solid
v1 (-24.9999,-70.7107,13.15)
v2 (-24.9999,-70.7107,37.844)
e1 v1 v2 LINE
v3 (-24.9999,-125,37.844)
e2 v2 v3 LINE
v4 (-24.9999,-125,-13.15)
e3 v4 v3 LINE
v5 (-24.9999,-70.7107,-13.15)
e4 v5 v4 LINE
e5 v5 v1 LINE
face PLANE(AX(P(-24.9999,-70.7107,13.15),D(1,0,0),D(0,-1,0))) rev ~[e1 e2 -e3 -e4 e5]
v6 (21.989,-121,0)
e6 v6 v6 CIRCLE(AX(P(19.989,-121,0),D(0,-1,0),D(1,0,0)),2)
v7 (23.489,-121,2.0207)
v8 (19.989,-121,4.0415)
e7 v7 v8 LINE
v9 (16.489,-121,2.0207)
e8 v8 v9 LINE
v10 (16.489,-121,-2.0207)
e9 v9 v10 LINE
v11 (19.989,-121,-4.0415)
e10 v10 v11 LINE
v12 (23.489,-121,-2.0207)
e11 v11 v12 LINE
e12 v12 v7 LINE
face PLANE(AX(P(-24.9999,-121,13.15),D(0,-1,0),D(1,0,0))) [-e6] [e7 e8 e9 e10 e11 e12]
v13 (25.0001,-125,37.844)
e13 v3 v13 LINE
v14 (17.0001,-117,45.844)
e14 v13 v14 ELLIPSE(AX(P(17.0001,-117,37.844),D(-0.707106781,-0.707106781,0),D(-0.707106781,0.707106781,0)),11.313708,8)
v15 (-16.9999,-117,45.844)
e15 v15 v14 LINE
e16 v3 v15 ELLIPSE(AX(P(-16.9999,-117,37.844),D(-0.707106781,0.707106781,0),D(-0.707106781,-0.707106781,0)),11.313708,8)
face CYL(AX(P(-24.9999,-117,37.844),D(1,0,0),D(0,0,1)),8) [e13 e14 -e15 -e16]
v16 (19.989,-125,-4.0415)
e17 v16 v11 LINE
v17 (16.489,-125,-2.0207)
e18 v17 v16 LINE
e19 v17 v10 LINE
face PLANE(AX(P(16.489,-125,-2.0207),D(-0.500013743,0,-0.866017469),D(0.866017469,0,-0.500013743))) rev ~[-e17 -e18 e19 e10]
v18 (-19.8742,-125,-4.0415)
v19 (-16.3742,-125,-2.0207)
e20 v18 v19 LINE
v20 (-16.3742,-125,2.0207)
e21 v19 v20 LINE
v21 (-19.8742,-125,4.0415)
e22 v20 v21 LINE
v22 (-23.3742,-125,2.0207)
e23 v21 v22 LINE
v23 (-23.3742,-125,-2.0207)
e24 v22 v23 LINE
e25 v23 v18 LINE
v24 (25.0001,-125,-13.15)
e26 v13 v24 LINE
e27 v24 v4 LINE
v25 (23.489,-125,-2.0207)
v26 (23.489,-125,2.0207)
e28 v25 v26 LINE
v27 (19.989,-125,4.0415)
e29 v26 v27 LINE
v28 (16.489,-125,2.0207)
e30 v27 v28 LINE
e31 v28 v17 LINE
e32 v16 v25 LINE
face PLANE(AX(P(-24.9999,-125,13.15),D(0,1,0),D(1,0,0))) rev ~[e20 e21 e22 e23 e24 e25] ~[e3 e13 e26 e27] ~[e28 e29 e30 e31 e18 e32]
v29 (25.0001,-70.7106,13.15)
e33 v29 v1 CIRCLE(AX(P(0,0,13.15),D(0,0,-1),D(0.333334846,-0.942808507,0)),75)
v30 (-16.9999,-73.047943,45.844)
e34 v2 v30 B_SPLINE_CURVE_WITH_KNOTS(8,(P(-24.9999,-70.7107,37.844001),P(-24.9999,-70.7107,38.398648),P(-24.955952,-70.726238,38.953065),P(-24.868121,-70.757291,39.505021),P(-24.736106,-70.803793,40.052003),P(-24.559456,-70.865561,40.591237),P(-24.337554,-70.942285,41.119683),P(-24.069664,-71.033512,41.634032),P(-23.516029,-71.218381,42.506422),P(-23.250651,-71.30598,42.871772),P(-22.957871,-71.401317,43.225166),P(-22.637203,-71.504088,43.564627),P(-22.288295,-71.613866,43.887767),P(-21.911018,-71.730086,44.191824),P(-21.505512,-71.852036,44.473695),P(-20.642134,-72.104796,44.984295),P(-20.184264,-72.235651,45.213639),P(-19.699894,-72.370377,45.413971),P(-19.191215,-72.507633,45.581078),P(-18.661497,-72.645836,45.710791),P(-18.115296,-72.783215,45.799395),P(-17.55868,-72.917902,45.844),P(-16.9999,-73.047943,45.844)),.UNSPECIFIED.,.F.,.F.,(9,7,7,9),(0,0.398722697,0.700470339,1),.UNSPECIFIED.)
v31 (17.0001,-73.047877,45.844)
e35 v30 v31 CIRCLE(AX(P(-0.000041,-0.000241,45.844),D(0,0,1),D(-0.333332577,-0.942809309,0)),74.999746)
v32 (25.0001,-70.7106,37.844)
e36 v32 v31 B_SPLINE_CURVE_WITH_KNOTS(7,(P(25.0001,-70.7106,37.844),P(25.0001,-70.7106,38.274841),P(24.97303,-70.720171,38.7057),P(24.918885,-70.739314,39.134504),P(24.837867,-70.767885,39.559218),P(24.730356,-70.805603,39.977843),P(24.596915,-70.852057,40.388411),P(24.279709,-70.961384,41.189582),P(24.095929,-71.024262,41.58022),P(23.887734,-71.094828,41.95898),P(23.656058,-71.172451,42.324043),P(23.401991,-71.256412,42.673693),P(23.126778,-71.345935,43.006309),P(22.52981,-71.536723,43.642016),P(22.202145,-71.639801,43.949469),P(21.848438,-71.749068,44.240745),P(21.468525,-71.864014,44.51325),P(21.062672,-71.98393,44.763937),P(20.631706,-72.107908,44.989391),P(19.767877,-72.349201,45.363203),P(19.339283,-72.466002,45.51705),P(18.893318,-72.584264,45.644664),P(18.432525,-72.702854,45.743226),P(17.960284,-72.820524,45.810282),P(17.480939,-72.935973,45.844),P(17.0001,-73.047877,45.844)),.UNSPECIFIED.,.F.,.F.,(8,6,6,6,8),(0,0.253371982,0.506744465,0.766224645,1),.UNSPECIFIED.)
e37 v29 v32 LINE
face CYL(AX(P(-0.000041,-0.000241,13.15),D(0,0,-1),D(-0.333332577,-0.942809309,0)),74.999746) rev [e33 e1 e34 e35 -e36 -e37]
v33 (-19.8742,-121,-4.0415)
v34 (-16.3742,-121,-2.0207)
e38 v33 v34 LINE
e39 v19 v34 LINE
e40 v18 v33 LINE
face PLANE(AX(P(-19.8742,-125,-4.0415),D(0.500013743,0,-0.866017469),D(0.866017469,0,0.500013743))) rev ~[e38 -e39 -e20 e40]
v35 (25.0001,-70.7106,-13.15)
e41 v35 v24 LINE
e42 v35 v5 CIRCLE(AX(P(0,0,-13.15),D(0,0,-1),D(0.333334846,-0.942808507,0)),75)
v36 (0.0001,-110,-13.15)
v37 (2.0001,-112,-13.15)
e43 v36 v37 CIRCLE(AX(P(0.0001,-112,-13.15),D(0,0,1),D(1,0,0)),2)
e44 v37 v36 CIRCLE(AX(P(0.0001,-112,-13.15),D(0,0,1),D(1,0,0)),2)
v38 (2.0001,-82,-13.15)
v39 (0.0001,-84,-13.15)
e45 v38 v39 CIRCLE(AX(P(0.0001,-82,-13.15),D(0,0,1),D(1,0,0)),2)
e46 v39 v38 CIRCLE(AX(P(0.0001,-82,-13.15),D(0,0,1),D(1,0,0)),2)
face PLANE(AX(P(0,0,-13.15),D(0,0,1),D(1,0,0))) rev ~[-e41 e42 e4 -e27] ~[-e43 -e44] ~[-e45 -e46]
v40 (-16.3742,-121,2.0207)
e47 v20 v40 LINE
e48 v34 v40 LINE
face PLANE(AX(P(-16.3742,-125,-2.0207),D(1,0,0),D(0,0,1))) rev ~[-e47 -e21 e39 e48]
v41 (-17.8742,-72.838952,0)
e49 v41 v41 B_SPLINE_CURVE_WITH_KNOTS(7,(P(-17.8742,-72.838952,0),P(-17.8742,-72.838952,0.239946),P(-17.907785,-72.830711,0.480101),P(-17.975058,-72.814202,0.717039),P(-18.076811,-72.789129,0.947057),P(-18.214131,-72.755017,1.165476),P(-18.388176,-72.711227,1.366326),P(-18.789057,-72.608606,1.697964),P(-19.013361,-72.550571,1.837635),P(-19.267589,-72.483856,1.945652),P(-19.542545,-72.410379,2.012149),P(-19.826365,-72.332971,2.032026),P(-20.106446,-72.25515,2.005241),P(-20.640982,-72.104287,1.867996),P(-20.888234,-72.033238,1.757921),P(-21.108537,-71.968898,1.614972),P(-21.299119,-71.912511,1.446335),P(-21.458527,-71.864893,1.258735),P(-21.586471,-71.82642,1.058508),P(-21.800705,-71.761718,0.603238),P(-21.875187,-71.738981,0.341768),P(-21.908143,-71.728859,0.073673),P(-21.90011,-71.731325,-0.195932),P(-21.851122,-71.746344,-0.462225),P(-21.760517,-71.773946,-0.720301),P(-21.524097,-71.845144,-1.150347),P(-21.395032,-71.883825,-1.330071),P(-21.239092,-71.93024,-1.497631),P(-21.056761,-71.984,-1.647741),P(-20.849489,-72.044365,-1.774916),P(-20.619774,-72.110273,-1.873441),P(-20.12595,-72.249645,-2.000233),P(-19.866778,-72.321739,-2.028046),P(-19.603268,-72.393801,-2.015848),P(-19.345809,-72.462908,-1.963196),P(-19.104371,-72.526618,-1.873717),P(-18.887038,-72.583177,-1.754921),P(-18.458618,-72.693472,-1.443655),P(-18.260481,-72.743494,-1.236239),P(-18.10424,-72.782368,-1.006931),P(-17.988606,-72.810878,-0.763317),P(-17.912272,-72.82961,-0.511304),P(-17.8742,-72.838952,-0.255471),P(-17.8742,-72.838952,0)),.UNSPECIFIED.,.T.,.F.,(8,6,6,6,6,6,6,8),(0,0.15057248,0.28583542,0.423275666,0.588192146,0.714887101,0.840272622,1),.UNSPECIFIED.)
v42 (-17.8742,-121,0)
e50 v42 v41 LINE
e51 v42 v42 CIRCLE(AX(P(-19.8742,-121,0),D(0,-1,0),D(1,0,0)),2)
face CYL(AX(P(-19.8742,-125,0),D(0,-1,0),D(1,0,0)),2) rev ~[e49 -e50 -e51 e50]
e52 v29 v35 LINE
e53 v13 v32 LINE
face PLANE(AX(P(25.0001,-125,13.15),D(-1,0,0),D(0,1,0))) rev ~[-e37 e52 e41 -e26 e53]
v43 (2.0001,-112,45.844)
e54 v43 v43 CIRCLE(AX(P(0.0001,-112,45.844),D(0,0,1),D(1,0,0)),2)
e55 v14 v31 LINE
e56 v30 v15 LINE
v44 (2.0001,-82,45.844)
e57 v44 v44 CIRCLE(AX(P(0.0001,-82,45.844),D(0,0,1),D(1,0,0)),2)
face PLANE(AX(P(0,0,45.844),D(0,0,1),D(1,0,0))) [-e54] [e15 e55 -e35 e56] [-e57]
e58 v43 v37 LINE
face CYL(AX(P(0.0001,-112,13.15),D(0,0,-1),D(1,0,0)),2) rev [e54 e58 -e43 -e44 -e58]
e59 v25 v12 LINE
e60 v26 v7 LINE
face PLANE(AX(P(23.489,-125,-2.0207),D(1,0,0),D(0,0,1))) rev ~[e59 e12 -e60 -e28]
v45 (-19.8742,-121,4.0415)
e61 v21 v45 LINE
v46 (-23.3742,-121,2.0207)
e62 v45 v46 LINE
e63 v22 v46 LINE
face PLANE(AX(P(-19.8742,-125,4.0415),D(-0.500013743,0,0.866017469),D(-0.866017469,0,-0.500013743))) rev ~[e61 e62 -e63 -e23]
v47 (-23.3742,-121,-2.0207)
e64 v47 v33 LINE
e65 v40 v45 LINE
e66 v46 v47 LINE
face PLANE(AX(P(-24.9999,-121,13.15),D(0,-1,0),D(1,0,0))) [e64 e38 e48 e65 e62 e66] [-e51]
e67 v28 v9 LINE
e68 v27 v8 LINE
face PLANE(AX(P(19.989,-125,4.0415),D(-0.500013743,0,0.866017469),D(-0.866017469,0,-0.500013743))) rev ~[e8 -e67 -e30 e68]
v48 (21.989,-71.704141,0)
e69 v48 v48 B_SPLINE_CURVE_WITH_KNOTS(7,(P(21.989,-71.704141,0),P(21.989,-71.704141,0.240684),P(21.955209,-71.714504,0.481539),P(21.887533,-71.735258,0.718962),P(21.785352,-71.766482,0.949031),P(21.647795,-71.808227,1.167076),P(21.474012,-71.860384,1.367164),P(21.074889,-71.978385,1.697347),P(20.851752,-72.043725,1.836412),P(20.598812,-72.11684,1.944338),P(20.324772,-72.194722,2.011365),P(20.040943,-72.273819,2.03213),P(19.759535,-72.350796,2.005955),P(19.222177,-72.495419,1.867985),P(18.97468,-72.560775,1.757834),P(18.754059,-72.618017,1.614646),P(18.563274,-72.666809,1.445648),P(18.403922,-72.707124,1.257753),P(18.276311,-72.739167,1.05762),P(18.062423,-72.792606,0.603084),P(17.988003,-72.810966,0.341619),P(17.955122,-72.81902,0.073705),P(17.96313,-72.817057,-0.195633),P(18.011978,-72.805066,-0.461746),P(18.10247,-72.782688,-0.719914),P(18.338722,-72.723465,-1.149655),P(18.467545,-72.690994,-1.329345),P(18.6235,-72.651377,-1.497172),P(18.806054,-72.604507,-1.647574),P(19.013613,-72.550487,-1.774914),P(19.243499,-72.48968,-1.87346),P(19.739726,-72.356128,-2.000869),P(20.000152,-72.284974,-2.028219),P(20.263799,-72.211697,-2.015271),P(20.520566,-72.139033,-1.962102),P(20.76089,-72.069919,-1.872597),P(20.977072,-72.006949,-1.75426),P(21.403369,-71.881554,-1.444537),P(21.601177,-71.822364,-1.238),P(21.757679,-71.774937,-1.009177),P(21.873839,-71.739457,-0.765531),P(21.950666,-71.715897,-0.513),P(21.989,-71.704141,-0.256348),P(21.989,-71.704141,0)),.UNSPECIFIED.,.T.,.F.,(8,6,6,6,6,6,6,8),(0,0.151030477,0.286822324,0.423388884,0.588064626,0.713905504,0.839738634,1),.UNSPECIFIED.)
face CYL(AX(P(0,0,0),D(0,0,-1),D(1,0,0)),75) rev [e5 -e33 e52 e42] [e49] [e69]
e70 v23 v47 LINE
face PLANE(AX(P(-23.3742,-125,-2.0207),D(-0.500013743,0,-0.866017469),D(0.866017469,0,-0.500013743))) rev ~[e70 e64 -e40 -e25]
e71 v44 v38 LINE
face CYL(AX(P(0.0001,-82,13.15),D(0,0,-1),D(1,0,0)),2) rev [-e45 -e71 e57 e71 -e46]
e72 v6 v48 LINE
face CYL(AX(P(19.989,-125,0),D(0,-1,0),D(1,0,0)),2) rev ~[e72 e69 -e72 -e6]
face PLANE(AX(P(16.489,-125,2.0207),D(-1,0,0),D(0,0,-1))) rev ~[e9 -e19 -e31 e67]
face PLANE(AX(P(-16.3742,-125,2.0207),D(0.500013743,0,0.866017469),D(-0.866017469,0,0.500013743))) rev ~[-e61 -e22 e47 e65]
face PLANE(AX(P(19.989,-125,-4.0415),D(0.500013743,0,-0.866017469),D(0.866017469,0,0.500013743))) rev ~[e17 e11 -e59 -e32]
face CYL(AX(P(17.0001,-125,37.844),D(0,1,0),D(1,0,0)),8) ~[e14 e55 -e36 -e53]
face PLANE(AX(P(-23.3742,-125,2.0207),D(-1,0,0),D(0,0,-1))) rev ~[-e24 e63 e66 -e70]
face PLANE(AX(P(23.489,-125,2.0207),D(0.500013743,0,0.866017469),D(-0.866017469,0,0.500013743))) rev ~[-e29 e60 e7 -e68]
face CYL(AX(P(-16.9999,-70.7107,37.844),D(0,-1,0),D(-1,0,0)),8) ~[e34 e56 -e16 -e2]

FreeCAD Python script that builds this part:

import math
import FreeCAD as App
import Part
import Sketcher
Q = App.Units.Quantity


def edges_at(feature, points):
    """Names of the edges that pass closest to the given points."""
    edges = feature.Shape.Edges
    near = lambda p: min(range(len(edges)), key=lambda i: edges[i].distToShape(Part.Vertex(*p))[0])
    return sorted({f"Edge{near(p) + 1}" for p in points})


def add_polygon(sketch, points):
    """Adds a closed chain of lines whose ends are joined by coincident constraints."""
    first, n = sketch.GeometryCount, len(points)
    for a, b in zip(points, points[1:] + points[:1]):
        sketch.addGeometry(Part.LineSegment(App.Vector(*a, 0), App.Vector(*b, 0)), False)
    for i in range(n):
        sketch.addConstraint(Sketcher.Constraint("Coincident", first + i, 2, first + (i + 1) % n, 1))

doc = App.newDocument("Part")
body = doc.addObject("PartDesign::Body", "Body")

# Sketch on XY plane
sketch1 = doc.addObject("Sketcher::SketchObject", "Sketch")
body.addObject(sketch1)
sketch1.AttachmentSupport = (doc.XY_Plane, [""])
sketch1.MapMode = "FlatFace"
sketch1.addGeometry([
    Part.LineSegment(App.Vector(-25, -70.7, 0), App.Vector(-25, -125, 0)),  # 0
    Part.LineSegment(App.Vector(-25, -125, 0), App.Vector(25, -125, 0)),  # 1
    Part.LineSegment(App.Vector(25, -125, 0), App.Vector(25, -70.7, 0)),  # 2
    Part.ArcOfCircle(Part.Circle(App.Vector(0, 0, 0), App.Vector(0, 0, 1), 75), math.radians(-109), math.radians(-71)),  # 3
    Part.Circle(App.Vector(0, -82, 0), App.Vector(0, 0, 1), 2),  # 4
    Part.Circle(App.Vector(0, -112, 0), App.Vector(0, 0, 1), 2),  # 5
], False)
sketch1.addConstraint([
    Sketcher.Constraint("Coincident", 0, 2, 1, 1),
    Sketcher.Constraint("Coincident", 1, 2, 2, 1),
    Sketcher.Constraint("Coincident", 2, 2, 3, 2),
    Sketcher.Constraint("Coincident", 3, 1, 0, 1),
    Sketcher.Constraint("Vertical", 0),
    Sketcher.Constraint("Horizontal", 1),
    Sketcher.Constraint("Vertical", 2),
    Sketcher.Constraint("Coincident", 3, 3, -1, 1),
    Sketcher.Constraint("Equal", 4, 5),
    Sketcher.Constraint("PointOnObject", 4, 3, -2),
    Sketcher.Constraint("PointOnObject", 5, 3, -2),
    Sketcher.Constraint("Horizontal", 2, 2, 3, 1),
    Sketcher.Constraint("Diameter", 4, 4.0),
    Sketcher.Constraint("Radius", 3, 75.0),
    Sketcher.Constraint("DistanceX", 1, 1, 1, 2, 50.0),
    Sketcher.Constraint("DistanceY", 4, 3, -1, 1, 82.0),
    Sketcher.Constraint("DistanceY", 5, 3, 4, 3, 30.0),
    Sketcher.Constraint("DistanceY", 0, 2, -1, 1, 125.0),
])
pad1 = doc.addObject("PartDesign::Pad", "Pad")
body.addObject(pad1)
pad1.Profile = sketch1
pad1.Length = 26.3
pad1.Midplane = True

# Sketch on XZ plane
sketch2 = doc.addObject("Sketcher::SketchObject", "Sketch001")
body.addObject(sketch2)
sketch2.AttachmentSupport = (doc.XZ_Plane, [""])
sketch2.MapMode = "FlatFace"
sketch2.AttachmentOffset = App.Placement(App.Vector(0, 0, 125), App.Rotation())
sketch2.addGeometry([
    Part.Circle(App.Vector(-19.9, 0, 0), App.Vector(0, 0, 1), 2),
    Part.Circle(App.Vector(20, 0, 0), App.Vector(0, 0, 1), 2),
], False)
sketch2.addConstraint([
    Sketcher.Constraint("Equal", 0, 1),
    Sketcher.Constraint("PointOnObject", 0, 3, -1),
    Sketcher.Constraint("PointOnObject", 1, 3, -1),
    Sketcher.Constraint("Diameter", 0, 4.0),
    Sketcher.Constraint("DistanceX", -1, 1, 1, 3, 19.989),
    Sketcher.Constraint("DistanceX", 0, 3, -1, 1, 19.8742),
])
pocket1 = doc.addObject("PartDesign::Pocket", "Pocket")
body.addObject(pocket1)
pocket1.Profile = sketch2
pocket1.Type = "ThroughAll"

# Sketch on XZ plane
sketch3 = doc.addObject("Sketcher::SketchObject", "Sketch002")
body.addObject(sketch3)
sketch3.AttachmentSupport = (doc.XZ_Plane, [""])
sketch3.MapMode = "FlatFace"
sketch3.AttachmentOffset = App.Placement(App.Vector(0, 0, 125), App.Rotation())
add_polygon(sketch3, [(-16.4, -2), (-16.4, 2), (-19.9, 4), (-23.4, 2), (-23.4, -2), (-19.9, -4)])  # lines 0-5
add_polygon(sketch3, [(23.5, 2), (20, 4), (16.5, 2), (16.5, -2), (20, -4), (23.5, -2)])  # lines 6-11
sketch3.addConstraint([
    Sketcher.Constraint("Vertical", 0),
    Sketcher.Constraint("Vertical", 3),
    Sketcher.Constraint("Vertical", 8),
    Sketcher.Constraint("Vertical", 11),
    Sketcher.Constraint("Symmetric", 1, 2, 4, 2, -1),
    Sketcher.Constraint("Symmetric", 6, 2, 9, 2, -1),
    Sketcher.Constraint("Parallel", 1, 4),
    Sketcher.Constraint("Parallel", 2, 5),
    Sketcher.Constraint("Parallel", 4, 6),
    Sketcher.Constraint("Parallel", 5, 7),
    Sketcher.Constraint("Parallel", 6, 9),
    Sketcher.Constraint("Parallel", 7, 10),
    Sketcher.Constraint("Horizontal", 0, 2, 2, 2),
    Sketcher.Constraint("Horizontal", 3, 2, 5, 2),
    Sketcher.Constraint("Horizontal", 1, 2, 6, 2),
    Sketcher.Constraint("Horizontal", 2, 2, 7, 2),
    Sketcher.Constraint("Horizontal", 8, 2, 10, 2),
    Sketcher.Constraint("Angle", 1, Q("149.999 deg")),
    Sketcher.Constraint("DistanceX", 2, 2, 0, 2, 7.0),
    Sketcher.Constraint("DistanceY", 0, 1, 0, 2, 4.0414),
    Sketcher.Constraint("DistanceX", -1, 1, 6, 2, 19.989),
    Sketcher.Constraint("DistanceX", 0, 2, -1, 1, 16.3742),
])
pocket2 = doc.addObject("PartDesign::Pocket", "Pocket001")
body.addObject(pocket2)
pocket2.Profile = sketch3
pocket2.Length = 4

# Sketch on XY plane
sketch4 = doc.addObject("Sketcher::SketchObject", "Sketch003")
body.addObject(sketch4)
sketch4.AttachmentSupport = (doc.XY_Plane, [""])
sketch4.MapMode = "FlatFace"
sketch4.AttachmentOffset = App.Placement(App.Vector(0, 0, 13.15), App.Rotation())
sketch4.addGeometry([
    Part.ArcOfCircle(Part.Circle(App.Vector(0, 0, 0), App.Vector(0, 0, 1), 75), math.radians(-109), math.radians(-71)),  # 0
    Part.LineSegment(App.Vector(-25, -70.7, 0), App.Vector(-25, -125, 0)),  # 1
    Part.LineSegment(App.Vector(-25, -125, 0), App.Vector(25, -125, 0)),  # 2
    Part.LineSegment(App.Vector(25, -125, 0), App.Vector(25, -70.7, 0)),  # 3
    Part.Circle(App.Vector(0, -112, 0), App.Vector(0, 0, 1), 2),  # 4
    Part.Circle(App.Vector(0, -82, 0), App.Vector(0, 0, 1), 2),  # 5
], False)
sketch4.addConstraint([
    Sketcher.Constraint("Coincident", 0, 1, 1, 1),
    Sketcher.Constraint("Coincident", 1, 2, 2, 1),
    Sketcher.Constraint("Coincident", 2, 2, 3, 1),
    Sketcher.Constraint("Coincident", 3, 2, 0, 2),
    Sketcher.Constraint("Vertical", 1),
    Sketcher.Constraint("Horizontal", 2),
    Sketcher.Constraint("Vertical", 3),
    Sketcher.Constraint("Coincident", 0, 3, -1, 1),
    Sketcher.Constraint("Equal", 4, 5),
    Sketcher.Constraint("PointOnObject", 4, 3, -2),
    Sketcher.Constraint("PointOnObject", 5, 3, -2),
    Sketcher.Constraint("Horizontal", 0, 1, 3, 2),
    Sketcher.Constraint("Diameter", 4, 4.0),
    Sketcher.Constraint("Radius", 0, 75.0),
    Sketcher.Constraint("DistanceX", 2, 1, 2, 2, 50.0),
    Sketcher.Constraint("DistanceY", 4, 3, -1, 1, 112.0),
    Sketcher.Constraint("DistanceY", 5, 3, -1, 1, 82.0),
    Sketcher.Constraint("DistanceY", 1, 2, -1, 1, 125.0),
])
pad2 = doc.addObject("PartDesign::Pad", "Pad001")
body.addObject(pad2)
pad2.Profile = sketch4
pad2.Length = 32.694
doc.recompute()

fillet = doc.addObject("PartDesign::Fillet", "Fillet")
body.addObject(fillet)
fillet.Base = (pad2, edges_at(pad2, [(25, -97.855, 45.844), (-25, -97.855, 45.844), (0, -125, 45.844)]))
fillet.Radius = 8

doc.recompute()
